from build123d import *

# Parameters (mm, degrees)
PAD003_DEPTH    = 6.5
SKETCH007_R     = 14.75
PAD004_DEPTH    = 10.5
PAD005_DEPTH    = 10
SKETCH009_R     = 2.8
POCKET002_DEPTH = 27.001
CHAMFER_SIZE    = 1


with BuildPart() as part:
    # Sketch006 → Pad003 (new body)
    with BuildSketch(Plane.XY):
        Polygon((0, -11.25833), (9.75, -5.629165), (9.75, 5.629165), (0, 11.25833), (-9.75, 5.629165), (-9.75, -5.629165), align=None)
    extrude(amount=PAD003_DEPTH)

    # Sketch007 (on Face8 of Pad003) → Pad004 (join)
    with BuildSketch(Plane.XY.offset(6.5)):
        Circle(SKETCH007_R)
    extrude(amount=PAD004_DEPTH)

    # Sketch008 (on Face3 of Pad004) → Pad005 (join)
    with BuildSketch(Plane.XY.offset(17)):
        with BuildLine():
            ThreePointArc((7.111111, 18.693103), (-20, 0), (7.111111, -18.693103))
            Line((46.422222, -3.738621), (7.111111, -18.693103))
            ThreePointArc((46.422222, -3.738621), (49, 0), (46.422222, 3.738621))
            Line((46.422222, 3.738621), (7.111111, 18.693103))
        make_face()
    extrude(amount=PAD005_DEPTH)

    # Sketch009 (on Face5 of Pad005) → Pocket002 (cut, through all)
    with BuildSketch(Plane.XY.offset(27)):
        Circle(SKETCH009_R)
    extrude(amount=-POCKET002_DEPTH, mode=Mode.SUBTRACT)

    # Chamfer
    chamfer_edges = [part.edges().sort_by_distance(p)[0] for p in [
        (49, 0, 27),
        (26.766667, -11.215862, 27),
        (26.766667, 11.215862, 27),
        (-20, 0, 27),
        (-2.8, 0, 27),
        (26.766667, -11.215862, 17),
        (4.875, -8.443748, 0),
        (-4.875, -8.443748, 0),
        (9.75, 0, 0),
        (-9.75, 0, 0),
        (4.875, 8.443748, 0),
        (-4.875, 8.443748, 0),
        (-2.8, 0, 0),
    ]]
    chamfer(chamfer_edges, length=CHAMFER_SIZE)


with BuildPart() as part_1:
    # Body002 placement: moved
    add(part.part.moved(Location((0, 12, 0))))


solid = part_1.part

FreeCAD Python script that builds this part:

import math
import FreeCAD as App
import Part
import Sketcher
Q = App.Units.Quantity


def edges_at(feature, points):
    """Names of the edges that pass closest to the given points."""
    edges = feature.Shape.Edges
    near = lambda p: min(range(len(edges)), key=lambda i: edges[i].distToShape(Part.Vertex(*p))[0])
    return sorted({f"Edge{near(p) + 1}" for p in points})


def add_polygon(sketch, points):
    """Adds a closed chain of lines whose ends are joined by coincident constraints."""
    first, n = sketch.GeometryCount, len(points)
    for a, b in zip(points, points[1:] + points[:1]):
        sketch.addGeometry(Part.LineSegment(App.Vector(*a, 0), App.Vector(*b, 0)), False)
    for i in range(n):
        sketch.addConstraint(Sketcher.Constraint("Coincident", first + i, 2, first + (i + 1) % n, 1))

doc = App.newDocument("Part")
body = doc.addObject("PartDesign::Body", "Body")

sketch1 = body.newObject("Sketcher::SketchObject", "Sketch")
sketch1.AttachmentSupport = (doc.getObject("XY_Plane"), [""])
sketch1.MapMode = "FlatFace"
add_polygon(sketch1, [(0, -11), (10, -6), (10, 6), (0, 11), (-10, 6), (-10, -6)])
sketch1.addConstraint(Sketcher.Constraint("Vertical", 1))
sketch1.addConstraint(Sketcher.Constraint("Vertical", 4))
sketch1.addConstraint(Sketcher.Constraint("Symmetric", 0, 2, 3, 2, -1, 1))
sketch1.addConstraint(Sketcher.Constraint("Symmetric", 2, 2, 5, 2, -1, 1))
sketch1.addConstraint(Sketcher.Constraint("PointOnObject", 2, 2, -2))
sketch1.addConstraint(Sketcher.Constraint("Parallel", 2, 5))
sketch1.addConstraint(Sketcher.Constraint("Horizontal", 1, 2, 3, 2))
sketch1.addConstraint(Sketcher.Constraint("Angle", 0, Q("29.999999 deg")))
sketch1.addConstraint(Sketcher.Constraint("DistanceX", 3, 2, 1, 2, 19.5))
sketch1.addConstraint(Sketcher.Constraint("DistanceY", 1, 1, 1, 2, 11.25833))
pad1 = body.newObject("PartDesign::Pad", "Pad")
pad1.Profile = sketch1
pad1.Length = 6.5

sketch2 = body.newObject("Sketcher::SketchObject", "Sketch001")
sketch2.AttachmentSupport = (doc.getObject("XY_Plane"), [""])
sketch2.MapMode = "FlatFace"
sketch2.AttachmentOffset = App.Placement(App.Vector(0, 0, 6.5), App.Rotation())
sketch2.addGeometry(Part.Circle(App.Vector(0, 0, 0), App.Vector(0, 0, 1), 15), False)
sketch2.addConstraint(Sketcher.Constraint("Coincident", 0, 3, -1, 1))
sketch2.addConstraint(Sketcher.Constraint("Diameter", 0, 29.5))
pad2 = body.newObject("PartDesign::Pad", "Pad001")
pad2.Profile = sketch2
pad2.Length = 10.5

sketch3 = body.newObject("Sketcher::SketchObject", "Sketch002")
sketch3.AttachmentSupport = (doc.getObject("XY_Plane"), [""])
sketch3.MapMode = "FlatFace"
sketch3.AttachmentOffset = App.Placement(App.Vector(0, 0, 17), App.Rotation())
sketch3.addGeometry(Part.ArcOfCircle(Part.Circle(App.Vector(0, 0, 0), App.Vector(0, 0, 1), 20), math.radians(69), math.radians(291)), False)
sketch3.addGeometry(Part.LineSegment(App.Vector(7.1, -18.7, 0), App.Vector(46.4, -3.7, 0)), False)
sketch3.addGeometry(Part.ArcOfCircle(Part.Circle(App.Vector(45, 0, 0), App.Vector(0, 0, 1), 4), math.radians(-69), math.radians(69)), False)
sketch3.addGeometry(Part.LineSegment(App.Vector(46.4, 3.7, 0), App.Vector(7.1, 18.7, 0)), False)
sketch3.addConstraint(Sketcher.Constraint("Tangent", 0, 2, 1, 1))
sketch3.addConstraint(Sketcher.Constraint("Tangent", 1, 2, 2, 1))
sketch3.addConstraint(Sketcher.Constraint("Tangent", 2, 2, 3, 1))
sketch3.addConstraint(Sketcher.Constraint("Tangent", 3, 2, 0, 1))
sketch3.addConstraint(Sketcher.Constraint("Coincident", 0, 3, -1, 1))
sketch3.addConstraint(Sketcher.Constraint("PointOnObject", 2, 3, -1))
sketch3.addConstraint(Sketcher.Constraint("Radius", 0, 20.0))
sketch3.addConstraint(Sketcher.Constraint("Radius", 2, 4.0))
sketch3.addConstraint(Sketcher.Constraint("DistanceX", -1, 1, 2, 3, 45.0))
pad3 = body.newObject("PartDesign::Pad", "Pad002")
pad3.Profile = sketch3
pad3.Length = 10

sketch4 = body.newObject("Sketcher::SketchObject", "Sketch003")
sketch4.AttachmentSupport = (doc.getObject("XY_Plane"), [""])
sketch4.MapMode = "FlatFace"
sketch4.AttachmentOffset = App.Placement(App.Vector(0, 0, 27), App.Rotation())
sketch4.addGeometry(Part.Circle(App.Vector(0, 0, 0), App.Vector(0, 0, 1), 2.8), False)
sketch4.addConstraint(Sketcher.Constraint("Coincident", 0, 3, -1, 1))
sketch4.addConstraint(Sketcher.Constraint("Diameter", 0, 5.6))
pocket1 = body.newObject("PartDesign::Pocket", "Pocket")
pocket1.Profile = sketch4
pocket1.Type = "ThroughAll"
doc.recompute()

chamfer = body.newObject("PartDesign::Chamfer", "Chamfer")
chamfer.Base = (pocket1, edges_at(pocket1, [
    (49, 0, 27),
    (26.767, -11.216, 27),
    (26.767, 11.216, 27),
    (-20, 0, 27),
    (-2.8, 0, 27),
    (26.767, -11.216, 17),
    (4.875, -8.444, 0),
    (-4.875, -8.444, 0),
    (9.75, 0, 0),
    (-9.75, 0, 0),
    (4.875, 8.444, 0),
    (-4.875, 8.444, 0),
    (-2.8, 0, 0),
]))
chamfer.Size = 1
body2 = doc.addObject("PartDesign::Body", "Body001")
doc.recompute()

body.Placement = App.Placement(App.Vector(0, 12, 0), App.Rotation(App.Vector(0, 0, 1), 0))
boolean = body2.newObject("PartDesign::Boolean", "Boolean")
boolean.Type = "Fuse"
boolean.addObjects([body])

doc.recompute()
